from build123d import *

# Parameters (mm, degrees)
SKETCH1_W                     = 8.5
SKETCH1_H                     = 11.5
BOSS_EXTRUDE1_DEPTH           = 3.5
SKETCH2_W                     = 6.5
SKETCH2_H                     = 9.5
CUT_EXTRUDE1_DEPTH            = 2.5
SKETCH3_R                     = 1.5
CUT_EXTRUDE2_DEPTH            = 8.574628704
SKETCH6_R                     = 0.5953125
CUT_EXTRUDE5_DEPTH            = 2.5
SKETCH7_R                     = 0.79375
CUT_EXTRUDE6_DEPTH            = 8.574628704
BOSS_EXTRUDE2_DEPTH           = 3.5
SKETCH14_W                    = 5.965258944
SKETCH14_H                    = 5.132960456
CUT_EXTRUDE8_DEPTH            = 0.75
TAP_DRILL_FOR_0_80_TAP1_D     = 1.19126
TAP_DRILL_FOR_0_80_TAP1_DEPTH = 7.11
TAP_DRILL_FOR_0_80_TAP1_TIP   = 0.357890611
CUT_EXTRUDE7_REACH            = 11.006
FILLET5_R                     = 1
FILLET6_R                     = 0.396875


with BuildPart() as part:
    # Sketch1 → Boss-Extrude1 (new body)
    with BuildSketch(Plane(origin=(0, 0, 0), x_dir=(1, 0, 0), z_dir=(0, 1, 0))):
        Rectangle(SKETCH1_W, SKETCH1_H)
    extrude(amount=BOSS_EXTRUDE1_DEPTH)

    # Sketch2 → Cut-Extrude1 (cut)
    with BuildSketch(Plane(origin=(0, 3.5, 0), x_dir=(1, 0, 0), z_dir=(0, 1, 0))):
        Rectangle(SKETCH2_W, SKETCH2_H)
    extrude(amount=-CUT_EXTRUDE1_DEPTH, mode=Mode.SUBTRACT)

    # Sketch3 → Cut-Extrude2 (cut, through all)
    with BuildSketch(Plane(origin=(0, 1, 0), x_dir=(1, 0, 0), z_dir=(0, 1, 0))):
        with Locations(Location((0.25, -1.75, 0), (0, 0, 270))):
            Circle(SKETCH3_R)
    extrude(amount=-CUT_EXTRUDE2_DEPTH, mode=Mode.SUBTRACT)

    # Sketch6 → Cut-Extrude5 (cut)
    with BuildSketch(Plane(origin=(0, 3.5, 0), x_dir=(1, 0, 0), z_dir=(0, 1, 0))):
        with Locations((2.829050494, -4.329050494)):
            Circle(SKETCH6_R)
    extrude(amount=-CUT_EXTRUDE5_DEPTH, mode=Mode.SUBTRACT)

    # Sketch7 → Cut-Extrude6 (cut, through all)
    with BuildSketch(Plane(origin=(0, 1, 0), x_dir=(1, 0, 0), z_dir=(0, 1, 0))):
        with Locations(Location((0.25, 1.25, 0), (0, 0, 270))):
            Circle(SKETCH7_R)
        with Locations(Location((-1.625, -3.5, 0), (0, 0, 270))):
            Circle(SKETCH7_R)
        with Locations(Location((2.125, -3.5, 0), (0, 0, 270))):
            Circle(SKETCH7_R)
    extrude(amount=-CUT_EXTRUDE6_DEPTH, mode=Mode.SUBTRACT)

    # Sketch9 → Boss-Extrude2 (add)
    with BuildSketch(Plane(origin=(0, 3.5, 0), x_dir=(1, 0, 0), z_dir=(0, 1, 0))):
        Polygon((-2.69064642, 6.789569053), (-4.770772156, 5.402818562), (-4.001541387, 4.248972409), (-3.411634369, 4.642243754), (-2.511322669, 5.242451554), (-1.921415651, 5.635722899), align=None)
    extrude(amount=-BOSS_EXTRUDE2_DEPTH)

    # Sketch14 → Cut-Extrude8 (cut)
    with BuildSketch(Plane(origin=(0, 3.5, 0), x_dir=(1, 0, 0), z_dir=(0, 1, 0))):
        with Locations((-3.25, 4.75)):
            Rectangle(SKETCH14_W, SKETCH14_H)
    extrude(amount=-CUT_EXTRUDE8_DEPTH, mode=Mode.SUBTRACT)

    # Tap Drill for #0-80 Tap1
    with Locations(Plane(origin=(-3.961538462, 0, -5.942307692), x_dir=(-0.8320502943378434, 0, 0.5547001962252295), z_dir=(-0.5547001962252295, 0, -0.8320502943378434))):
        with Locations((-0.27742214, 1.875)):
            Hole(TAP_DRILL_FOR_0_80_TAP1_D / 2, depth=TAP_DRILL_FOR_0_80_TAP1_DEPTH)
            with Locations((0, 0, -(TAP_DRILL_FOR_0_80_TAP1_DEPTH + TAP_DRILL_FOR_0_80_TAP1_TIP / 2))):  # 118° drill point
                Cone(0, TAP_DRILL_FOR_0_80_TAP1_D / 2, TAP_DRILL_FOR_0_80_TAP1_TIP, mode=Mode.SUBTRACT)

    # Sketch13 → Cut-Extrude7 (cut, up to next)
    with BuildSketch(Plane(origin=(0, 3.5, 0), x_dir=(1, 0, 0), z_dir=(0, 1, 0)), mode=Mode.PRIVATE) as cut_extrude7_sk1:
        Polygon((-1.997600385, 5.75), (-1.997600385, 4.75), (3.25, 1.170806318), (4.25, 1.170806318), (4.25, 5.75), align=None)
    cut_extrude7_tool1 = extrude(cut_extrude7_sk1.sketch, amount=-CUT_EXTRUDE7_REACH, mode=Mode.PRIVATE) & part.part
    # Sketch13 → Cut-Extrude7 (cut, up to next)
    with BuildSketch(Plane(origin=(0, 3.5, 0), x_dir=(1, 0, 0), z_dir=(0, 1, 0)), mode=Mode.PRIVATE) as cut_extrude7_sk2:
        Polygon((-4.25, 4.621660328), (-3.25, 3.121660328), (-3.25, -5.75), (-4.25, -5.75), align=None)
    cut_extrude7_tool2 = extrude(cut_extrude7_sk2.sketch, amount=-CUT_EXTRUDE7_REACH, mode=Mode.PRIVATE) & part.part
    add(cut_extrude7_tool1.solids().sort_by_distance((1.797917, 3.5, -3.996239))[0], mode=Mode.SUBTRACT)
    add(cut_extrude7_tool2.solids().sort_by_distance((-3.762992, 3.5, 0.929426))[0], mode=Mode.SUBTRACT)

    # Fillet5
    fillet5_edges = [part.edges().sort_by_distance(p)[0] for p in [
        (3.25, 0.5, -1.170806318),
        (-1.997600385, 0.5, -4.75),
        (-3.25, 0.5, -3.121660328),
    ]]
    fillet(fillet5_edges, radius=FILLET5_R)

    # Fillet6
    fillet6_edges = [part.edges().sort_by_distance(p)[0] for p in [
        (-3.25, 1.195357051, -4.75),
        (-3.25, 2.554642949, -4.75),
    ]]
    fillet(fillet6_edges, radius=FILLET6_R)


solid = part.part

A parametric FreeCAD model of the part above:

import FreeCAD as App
import Part
import Sketcher
from FreeCAD import Vector
Q = App.Units.Quantity


def edges_at(feature, points):
    """Names of the edges that pass closest to the given points."""
    edges = feature.Shape.Edges
    near = lambda p: min(range(len(edges)), key=lambda i: edges[i].distToShape(Part.Vertex(*p))[0])
    return sorted({f"Edge{near(p) + 1}" for p in points})


def add_polygon(sketch, points):
    """Adds a closed chain of lines whose ends are joined by coincident constraints."""
    first, n = sketch.GeometryCount, len(points)
    for a, b in zip(points, points[1:] + points[:1]):
        sketch.addGeometry(Part.LineSegment(App.Vector(*a, 0), App.Vector(*b, 0)), False)
    for i in range(n):
        sketch.addConstraint(Sketcher.Constraint("Coincident", first + i, 2, first + (i + 1) % n, 1))

doc = App.newDocument("Part")
body = doc.addObject("PartDesign::Body", "Body")

# Sketch on XZ plane
sketch1 = doc.addObject("Sketcher::SketchObject", "Sketch")
body.addObject(sketch1)
sketch1.AttachmentSupport = (doc.XZ_Plane, [""])
sketch1.MapMode = "FlatFace"
add_polygon(sketch1, [(-4.25, -5.75), (-4.25, 5.75), (4.25, 5.75), (4.25, -5.75)])  # lines 0-3
sketch1.addConstraint(Sketcher.Constraint("Vertical", 0))
sketch1.addConstraint(Sketcher.Constraint("Horizontal", 1))
sketch1.addConstraint(Sketcher.Constraint("Vertical", 2))
sketch1.addConstraint(Sketcher.Constraint("Horizontal", 3))
sketch1.addConstraint(Sketcher.Constraint("Symmetric", 0, 2, 2, 2, -1, 1))
sketch1.addConstraint(Sketcher.Constraint("DistanceX", 1, 1, 1, 2, Q("8.5 mm")))
sketch1.addConstraint(Sketcher.Constraint("DistanceY", 0, 1, 0, 2, Q("11.5 mm")))
pad1 = doc.addObject("PartDesign::Pad", "Pad")
body.addObject(pad1)
pad1.Profile = sketch1
pad1.Length = 3.5
pad1.Reversed = True

# Sketch on XZ plane
sketch2 = doc.addObject("Sketcher::SketchObject", "Sketch001")
body.addObject(sketch2)
sketch2.AttachmentSupport = (doc.XZ_Plane, [""])
sketch2.MapMode = "FlatFace"
sketch2.AttachmentOffset = App.Placement(Vector(0, 0, -3.5), App.Rotation())
add_polygon(sketch2, [(-3.25, -4.75), (-3.25, 4.75), (3.25, 4.75), (3.25, -4.75)])  # lines 0-3
sketch2.addConstraint(Sketcher.Constraint("Vertical", 0))
sketch2.addConstraint(Sketcher.Constraint("Horizontal", 1))
sketch2.addConstraint(Sketcher.Constraint("Vertical", 2))
sketch2.addConstraint(Sketcher.Constraint("Horizontal", 3))
sketch2.addConstraint(Sketcher.Constraint("Symmetric", 0, 2, 2, 2, -1, 1))
sketch2.addConstraint(Sketcher.Constraint("DistanceX", 1, 1, 1, 2, Q("6.5 mm")))
sketch2.addConstraint(Sketcher.Constraint("DistanceY", 0, 1, 0, 2, Q("9.5 mm")))
pocket1 = doc.addObject("PartDesign::Pocket", "Pocket")
body.addObject(pocket1)
pocket1.Profile = sketch2
pocket1.Length = 2.5
pocket1.Reversed = True

# Sketch on XZ plane
sketch3 = doc.addObject("Sketcher::SketchObject", "Sketch002")
body.addObject(sketch3)
sketch3.AttachmentSupport = (doc.XZ_Plane, [""])
sketch3.MapMode = "FlatFace"
sketch3.AttachmentOffset = App.Placement(Vector(0, 0, -1), App.Rotation())
sketch3.addGeometry(Part.Circle(Vector(0.25, 1.75, 0), Vector(0, 0, 1), 1.5), False)
sketch3.addConstraint(Sketcher.Constraint("Diameter", 0, Q("3 mm")))
sketch3.addConstraint(Sketcher.Constraint("DistanceX", -1, 1, 0, 3, Q("0.25 mm")))
sketch3.addConstraint(Sketcher.Constraint("DistanceY", -1, 1, 0, 3, Q("1.75 mm")))
pocket2 = doc.addObject("PartDesign::Pocket", "Pocket001")
body.addObject(pocket2)
pocket2.Profile = sketch3
pocket2.Type = "ThroughAll"
pocket2.Reversed = True

# Sketch on XZ plane
sketch4 = doc.addObject("Sketcher::SketchObject", "Sketch003")
body.addObject(sketch4)
sketch4.AttachmentSupport = (doc.XZ_Plane, [""])
sketch4.MapMode = "FlatFace"
sketch4.AttachmentOffset = App.Placement(Vector(0, 0, -3.5), App.Rotation())
sketch4.addGeometry(Part.Circle(Vector(2.82905, 4.32905, 0), Vector(0, 0, 1), 0.595313), False)
sketch4.addConstraint(Sketcher.Constraint("Diameter", 0, Q("1.190625 mm")))
sketch4.addConstraint(Sketcher.Constraint("DistanceX", -1, 1, 0, 3, Q("2.82905 mm")))
sketch4.addConstraint(Sketcher.Constraint("DistanceY", -1, 1, 0, 3, Q("4.32905 mm")))
pocket3 = doc.addObject("PartDesign::Pocket", "Pocket002")
body.addObject(pocket3)
pocket3.Profile = sketch4
pocket3.Length = 2.5
pocket3.Reversed = True

# Sketch on XZ plane
sketch5 = doc.addObject("Sketcher::SketchObject", "Sketch004")
body.addObject(sketch5)
sketch5.AttachmentSupport = (doc.XZ_Plane, [""])
sketch5.MapMode = "FlatFace"
sketch5.AttachmentOffset = App.Placement(Vector(0, 0, -1), App.Rotation())
sketch5.addGeometry(Part.Circle(Vector(0.25, -1.25, 0), Vector(0, 0, 1), 0.79375), False)
sketch5.addGeometry(Part.Circle(Vector(-1.625, 3.5, 0), Vector(0, 0, 1), 0.79375), False)
sketch5.addGeometry(Part.Circle(Vector(2.125, 3.5, 0), Vector(0, 0, 1), 0.79375), False)
sketch5.addConstraint(Sketcher.Constraint("Equal", 0, 1))
sketch5.addConstraint(Sketcher.Constraint("Equal", 1, 2))
sketch5.addConstraint(Sketcher.Constraint("Horizontal", 1, 3, 2, 3))
sketch5.addConstraint(Sketcher.Constraint("Diameter", 0, Q("1.5875 mm")))
sketch5.addConstraint(Sketcher.Constraint("DistanceY", -1, 1, 1, 3, Q("3.5 mm")))
sketch5.addConstraint(Sketcher.Constraint("DistanceX", -1, 1, 0, 3, Q("0.25 mm")))
sketch5.addConstraint(Sketcher.Constraint("DistanceY", 0, 3, -1, 1, Q("1.25 mm")))
sketch5.addConstraint(Sketcher.Constraint("DistanceX", 1, 3, 2, 3, Q("3.75 mm")))
sketch5.addConstraint(Sketcher.Constraint("DistanceX", 1, 3, -1, 1, Q("1.625 mm")))
pocket4 = doc.addObject("PartDesign::Pocket", "Pocket003")
body.addObject(pocket4)
pocket4.Profile = sketch5
pocket4.Type = "ThroughAll"
pocket4.Reversed = True

# Sketch on XZ plane
sketch6 = doc.addObject("Sketcher::SketchObject", "Sketch005")
body.addObject(sketch6)
sketch6.AttachmentSupport = (doc.XZ_Plane, [""])
sketch6.MapMode = "FlatFace"
sketch6.AttachmentOffset = App.Placement(Vector(0, 0, -3.5), App.Rotation())
add_polygon(sketch6, [(-2.690646, -6.789569), (-4.770772, -5.402819), (-4.001541, -4.248972), (-3.411634, -4.642244), (-2.511323, -5.242452), (-1.921416, -5.635723)])  # lines 0-5
sketch6.addConstraint(Sketcher.Constraint("Perpendicular", 0, 1))
sketch6.addConstraint(Sketcher.Constraint("Perpendicular", 1, 2))
sketch6.addConstraint(Sketcher.Constraint("Parallel", 2, 3))
sketch6.addConstraint(Sketcher.Constraint("Parallel", 3, 4))
sketch6.addConstraint(Sketcher.Constraint("Perpendicular", 4, 5))
sketch6.addConstraint(Sketcher.Constraint("Equal", 2, 4))
sketch6.addConstraint(Sketcher.Constraint("Distance", 0, Q("2.5 mm")))
sketch6.addConstraint(Sketcher.Constraint("Distance", 1, Q("1.38675 mm")))
sketch6.addConstraint(Sketcher.Constraint("Distance", 2, Q("0.70898 mm")))
sketch6.addConstraint(Sketcher.Constraint("DistanceY", 0, 2, -1, 1, Q("5.402819 mm")))
sketch6.addConstraint(Sketcher.Constraint("DistanceX", 1, 2, -1, 1, Q("4.001541 mm")))
sketch6.addConstraint(Sketcher.Constraint("DistanceY", 3, 2, -1, 1, Q("5.242452 mm")))
pad2 = doc.addObject("PartDesign::Pad", "Pad001")
body.addObject(pad2)
pad2.Profile = sketch6
pad2.Length = 3.5

# Sketch on XZ plane
sketch7 = doc.addObject("Sketcher::SketchObject", "Sketch006")
body.addObject(sketch7)
sketch7.AttachmentSupport = (doc.XZ_Plane, [""])
sketch7.MapMode = "FlatFace"
sketch7.AttachmentOffset = App.Placement(Vector(0, 0, -3.5), App.Rotation())
add_polygon(sketch7, [(-6.232629, -7.31648), (-6.232629, -2.18352), (-0.267371, -2.18352), (-0.267371, -7.31648)])  # lines 0-3
sketch7.addConstraint(Sketcher.Constraint("Vertical", 0))
sketch7.addConstraint(Sketcher.Constraint("Horizontal", 1))
sketch7.addConstraint(Sketcher.Constraint("Vertical", 2))
sketch7.addConstraint(Sketcher.Constraint("Horizontal", 3))
sketch7.addConstraint(Sketcher.Constraint("DistanceX", 1, 1, 1, 2, Q("5.965259 mm")))
sketch7.addConstraint(Sketcher.Constraint("DistanceY", 0, 1, 0, 2, Q("5.13296 mm")))
sketch7.addConstraint(Sketcher.Constraint("DistanceX", 0, 2, -1, 1, Q("6.232629 mm")))
sketch7.addConstraint(Sketcher.Constraint("DistanceY", 0, 2, -1, 1, Q("2.18352 mm")))
pocket5 = doc.addObject("PartDesign::Pocket", "Pocket004")
body.addObject(pocket5)
pocket5.Profile = sketch7
pocket5.Length = 0.75
pocket5.Reversed = True

# Sketch on an angled plane
sketch8 = doc.addObject("Sketcher::SketchObject", "Sketch007")
body.addObject(sketch8)
sketch8.Placement = App.Placement(Vector(-3.961538, 0, -5.942308), App.Rotation(Vector(-0.832050294, 0, 0.554700196), Vector(0, 0.999999999, 0), Vector(-0.554700196, 0, -0.832050294), "ZXY"))
sketch8.addGeometry(Part.Circle(Vector(-0.277422, 1.875, 0), Vector(0, 0, 1), 0.59563), False)
sketch8.addConstraint(Sketcher.Constraint("Diameter", 0, Q("1.19126 mm")))
sketch8.addConstraint(Sketcher.Constraint("DistanceY", -1, 1, 0, 3, Q("1.875 mm")))
sketch8.addConstraint(Sketcher.Constraint("DistanceX", 0, 3, -1, 1, Q("0.277422 mm")))
doc.recompute()
hole = doc.addObject("PartDesign::Hole", "Hole")
body.addObject(hole)
hole.Profile = sketch8
hole.ThreadType = "None"
hole.Diameter = 1.19126
hole.DepthType = "Dimension"
hole.Depth = 7.11
hole.DrillPoint = "Angled"
hole.DrillPointAngle = 118

# Sketch on XZ plane
sketch9 = doc.addObject("Sketcher::SketchObject", "Sketch008")
body.addObject(sketch9)
sketch9.AttachmentSupport = (doc.XZ_Plane, [""])
sketch9.MapMode = "FlatFace"
sketch9.AttachmentOffset = App.Placement(Vector(0, 0, -3.5), App.Rotation())
add_polygon(sketch9, [(-1.9976, -5.75), (-1.9976, -4.75), (3.25, -1.170806), (4.25, -1.170806), (4.25, -5.75)])  # lines 0-4
sketch9.addConstraint(Sketcher.Constraint("Vertical", 0))
sketch9.addConstraint(Sketcher.Constraint("Horizontal", 2))
sketch9.addConstraint(Sketcher.Constraint("Vertical", 3))
sketch9.addConstraint(Sketcher.Constraint("Horizontal", 4))
sketch9.addConstraint(Sketcher.Constraint("Equal", 2, 0))
sketch9.addConstraint(Sketcher.Constraint("DistanceX", 2, 1, 2, 2, Q("1 mm")))
sketch9.addConstraint(Sketcher.Constraint("DistanceY", 0, 2, -1, 1, Q("4.75 mm")))
sketch9.addConstraint(Sketcher.Constraint("DistanceX", -1, 1, 1, 2, Q("3.25 mm")))
sketch9.addConstraint(Sketcher.Constraint("DistanceX", 4, 2, 4, 1, Q("6.2476 mm")))
sketch9.addConstraint(Sketcher.Constraint("DistanceY", 3, 2, 3, 1, Q("4.579194 mm")))
pocket6 = doc.addObject("PartDesign::Pocket", "Pocket005")
body.addObject(pocket6)
pocket6.Profile = sketch9
pocket6.Length = 3.5
pocket6.Reversed = True

# Sketch on XZ plane
sketch10 = doc.addObject("Sketcher::SketchObject", "Sketch009")
body.addObject(sketch10)
sketch10.AttachmentSupport = (doc.XZ_Plane, [""])
sketch10.MapMode = "FlatFace"
sketch10.AttachmentOffset = App.Placement(Vector(0, 0, -3.5), App.Rotation())
add_polygon(sketch10, [(-3.25, -3.12166), (-4.25, -4.62166), (-4.25, 5.75), (-3.25, 5.75)])  # lines 0-3
sketch10.addConstraint(Sketcher.Constraint("Vertical", 1))
sketch10.addConstraint(Sketcher.Constraint("Horizontal", 2))
sketch10.addConstraint(Sketcher.Constraint("Vertical", 3))
sketch10.addConstraint(Sketcher.Constraint("DistanceX", 2, 1, 2, 2, Q("1 mm")))
sketch10.addConstraint(Sketcher.Constraint("DistanceY", 0, 2, 3, 2, Q("1.5 mm")))
sketch10.addConstraint(Sketcher.Constraint("DistanceX", 0, 2, -1, 1, Q("4.25 mm")))
sketch10.addConstraint(Sketcher.Constraint("DistanceY", -1, 1, 1, 2, Q("5.75 mm")))
sketch10.addConstraint(Sketcher.Constraint("DistanceY", 1, 1, 1, 2, Q("10.37166 mm")))
pocket7 = doc.addObject("PartDesign::Pocket", "Pocket006")
body.addObject(pocket7)
pocket7.Profile = sketch10
pocket7.Type = "UpToFirst"
pocket7.Reversed = True
doc.recompute()

fillet = doc.addObject("PartDesign::Fillet", "Fillet")
body.addObject(fillet)
fillet.Base = (pocket7, edges_at(pocket7, [(3.25, 0.5, -1.171), (-1.998, 0.5, -4.75), (-3.25, 0.5, -3.122)]))
fillet.Radius = 1
doc.recompute()

fillet2 = doc.addObject("PartDesign::Fillet", "Fillet001")
body.addObject(fillet2)
fillet2.Base = (fillet, edges_at(fillet, [(-3.25, 1.195, -4.75), (-3.25, 2.555, -4.75)]))
fillet2.Radius = 0.396875

doc.recompute()
